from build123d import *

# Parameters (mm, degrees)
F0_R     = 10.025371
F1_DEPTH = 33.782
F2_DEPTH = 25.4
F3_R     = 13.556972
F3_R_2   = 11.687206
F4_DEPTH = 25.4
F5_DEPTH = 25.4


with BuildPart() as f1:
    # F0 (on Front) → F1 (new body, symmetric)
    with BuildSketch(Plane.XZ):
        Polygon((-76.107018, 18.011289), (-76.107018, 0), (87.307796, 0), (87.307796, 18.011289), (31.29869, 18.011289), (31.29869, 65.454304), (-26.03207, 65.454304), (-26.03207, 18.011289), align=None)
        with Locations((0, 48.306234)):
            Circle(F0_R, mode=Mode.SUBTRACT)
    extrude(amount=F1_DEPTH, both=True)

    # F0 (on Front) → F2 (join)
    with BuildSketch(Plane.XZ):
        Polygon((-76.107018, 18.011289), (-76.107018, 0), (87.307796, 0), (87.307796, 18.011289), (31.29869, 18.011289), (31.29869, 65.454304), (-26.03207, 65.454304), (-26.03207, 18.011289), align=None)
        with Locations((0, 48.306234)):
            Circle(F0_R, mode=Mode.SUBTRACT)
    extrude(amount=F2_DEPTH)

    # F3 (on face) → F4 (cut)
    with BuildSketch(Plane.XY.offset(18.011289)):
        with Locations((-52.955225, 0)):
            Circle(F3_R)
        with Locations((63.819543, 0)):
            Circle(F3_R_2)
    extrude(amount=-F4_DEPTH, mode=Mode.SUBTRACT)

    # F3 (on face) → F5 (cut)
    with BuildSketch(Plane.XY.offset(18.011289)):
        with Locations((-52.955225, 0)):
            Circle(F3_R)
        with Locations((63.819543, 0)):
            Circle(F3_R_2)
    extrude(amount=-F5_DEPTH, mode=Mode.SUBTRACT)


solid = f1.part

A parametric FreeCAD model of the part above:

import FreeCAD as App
import Part
import Sketcher

V = App.Vector
Q = App.Units.Quantity


def add_polygon(sketch, points):
    """Adds a closed chain of lines whose ends are joined by coincident constraints."""
    first, n = sketch.GeometryCount, len(points)
    for a, b in zip(points, points[1:] + points[:1]):
        sketch.addGeometry(Part.LineSegment(App.Vector(*a, 0), App.Vector(*b, 0)), False)
    for i in range(n):
        sketch.addConstraint(Sketcher.Constraint("Coincident", first + i, 2, first + (i + 1) % n, 1))

doc = App.newDocument("Part")
body = doc.addObject("PartDesign::Body", "Body")

# Sketch on XZ plane
sketch1 = doc.addObject("Sketcher::SketchObject", "Sketch")
body.addObject(sketch1)
sketch1.AttachmentSupport = (doc.XZ_Plane, [""])
sketch1.MapMode = "FlatFace"
add_polygon(sketch1, [(-76.107018, 18.011289), (-76.107018, 0), (87.307796, 0), (87.307796, 18.011289), (31.29869, 18.011289), (31.29869, 65.454304), (-26.03207, 65.454304), (-26.03207, 18.011289)])  # lines 0-7
sketch1.addGeometry(Part.Circle(V(0, 48.306234, 0), V(0, 0, 1), 10.025371), False)  # 8
sketch1.addConstraint([
    Sketcher.Constraint("Vertical", 0),
    Sketcher.Constraint("Horizontal", 1),
    Sketcher.Constraint("Vertical", 2),
    Sketcher.Constraint("Horizontal", 3),
    Sketcher.Constraint("Vertical", 4),
    Sketcher.Constraint("Horizontal", 5),
    Sketcher.Constraint("Vertical", 6),
    Sketcher.Constraint("Horizontal", 7),
    Sketcher.Constraint("PointOnObject", 8, 3, -2),
    Sketcher.Constraint("PointOnObject", 0, 2, -1),
    Sketcher.Constraint("Horizontal", 3, 2, 6, 2),
    Sketcher.Constraint("Diameter", 8, Q("20.050742 mm")),
    Sketcher.Constraint("DistanceX", 5, 2, 5, 1, Q("57.33076 mm")),
    Sketcher.Constraint("DistanceY", 0, 2, 0, 1, Q("18.011289 mm")),
    Sketcher.Constraint("DistanceX", 1, 1, 1, 2, Q("163.414814 mm")),
    Sketcher.Constraint("DistanceX", 3, 2, 3, 1, Q("56.009106 mm")),
    Sketcher.Constraint("DistanceY", 4, 1, 4, 2, Q("47.443015 mm")),
    Sketcher.Constraint("DistanceX", -1, 1, 3, 2, Q("31.29869 mm")),
    Sketcher.Constraint("DistanceY", 8, 3, 4, 2, Q("17.14807 mm")),
])
pad1 = doc.addObject("PartDesign::Pad", "Pad")
body.addObject(pad1)
pad1.Profile = sketch1
pad1.Length = Q("2.66 in")
pad1.Midplane = True

# Sketch on XZ plane
sketch2 = doc.addObject("Sketcher::SketchObject", "Sketch001")
body.addObject(sketch2)
sketch2.AttachmentSupport = (doc.XZ_Plane, [""])
sketch2.MapMode = "FlatFace"
add_polygon(sketch2, [(-76.107018, 18.011289), (-76.107018, 0), (87.307796, 0), (87.307796, 18.011289), (31.29869, 18.011289), (31.29869, 65.454304), (-26.03207, 65.454304), (-26.03207, 18.011289)])  # lines 0-7
sketch2.addGeometry(Part.Circle(V(0, 48.306234, 0), V(0, 0, 1), 10.025371), False)  # 8
sketch2.addConstraint([
    Sketcher.Constraint("Vertical", 0),
    Sketcher.Constraint("Horizontal", 1),
    Sketcher.Constraint("Vertical", 2),
    Sketcher.Constraint("Horizontal", 3),
    Sketcher.Constraint("Vertical", 4),
    Sketcher.Constraint("Horizontal", 5),
    Sketcher.Constraint("Vertical", 6),
    Sketcher.Constraint("Horizontal", 7),
    Sketcher.Constraint("PointOnObject", 8, 3, -2),
    Sketcher.Constraint("PointOnObject", 0, 2, -1),
    Sketcher.Constraint("Horizontal", 3, 2, 6, 2),
    Sketcher.Constraint("Diameter", 8, Q("20.050742 mm")),
    Sketcher.Constraint("DistanceX", 5, 2, 5, 1, Q("57.33076 mm")),
    Sketcher.Constraint("DistanceY", 0, 2, 0, 1, Q("18.011289 mm")),
    Sketcher.Constraint("DistanceX", 1, 1, 1, 2, Q("163.414814 mm")),
    Sketcher.Constraint("DistanceX", 3, 2, 3, 1, Q("56.009106 mm")),
    Sketcher.Constraint("DistanceY", 4, 1, 4, 2, Q("47.443015 mm")),
    Sketcher.Constraint("DistanceX", -1, 1, 3, 2, Q("31.29869 mm")),
    Sketcher.Constraint("DistanceY", 8, 3, 4, 2, Q("17.14807 mm")),
])
pad2 = doc.addObject("PartDesign::Pad", "Pad001")
body.addObject(pad2)
pad2.Profile = sketch2
pad2.Length = Q("1 in")

# Sketch on XY plane
sketch3 = doc.addObject("Sketcher::SketchObject", "Sketch002")
body.addObject(sketch3)
sketch3.AttachmentSupport = (doc.XY_Plane, [""])
sketch3.MapMode = "FlatFace"
sketch3.AttachmentOffset = App.Placement(V(0, 0, 18.011289), App.Rotation())
sketch3.addGeometry([
    Part.Circle(V(-52.955225, 0, 0), V(0, 0, 1), 13.556972),
    Part.Circle(V(63.819543, 0, 0), V(0, 0, 1), 11.687206),
], False)
sketch3.addConstraint([
    Sketcher.Constraint("PointOnObject", 0, 3, -1),
    Sketcher.Constraint("PointOnObject", 1, 3, -1),
    Sketcher.Constraint("Diameter", 1, Q("23.374412 mm")),
    Sketcher.Constraint("Diameter", 0, Q("27.113944 mm")),
    Sketcher.Constraint("DistanceX", 0, 3, -1, 1, Q("52.955225 mm")),
    Sketcher.Constraint("DistanceX", -1, 1, 1, 3, Q("63.819543 mm")),
])
pocket1 = doc.addObject("PartDesign::Pocket", "Pocket")
body.addObject(pocket1)
pocket1.Profile = sketch3
pocket1.Length = Q("1 in")

# Sketch on XY plane
sketch4 = doc.addObject("Sketcher::SketchObject", "Sketch003")
body.addObject(sketch4)
sketch4.AttachmentSupport = (doc.XY_Plane, [""])
sketch4.MapMode = "FlatFace"
sketch4.AttachmentOffset = App.Placement(V(0, 0, 18.011289), App.Rotation())
sketch4.addGeometry([
    Part.Circle(V(-52.955225, 0, 0), V(0, 0, 1), 13.556972),
    Part.Circle(V(63.819543, 0, 0), V(0, 0, 1), 11.687206),
], False)
sketch4.addConstraint([
    Sketcher.Constraint("PointOnObject", 0, 3, -1),
    Sketcher.Constraint("PointOnObject", 1, 3, -1),
    Sketcher.Constraint("Diameter", 1, Q("23.374412 mm")),
    Sketcher.Constraint("Diameter", 0, Q("27.113944 mm")),
    Sketcher.Constraint("DistanceX", 0, 3, -1, 1, Q("52.955225 mm")),
    Sketcher.Constraint("DistanceX", -1, 1, 1, 3, Q("63.819543 mm")),
])
pocket2 = doc.addObject("PartDesign::Pocket", "Pocket001")
body.addObject(pocket2)
pocket2.Profile = sketch4
pocket2.Length = Q("1 in")

doc.recompute()
